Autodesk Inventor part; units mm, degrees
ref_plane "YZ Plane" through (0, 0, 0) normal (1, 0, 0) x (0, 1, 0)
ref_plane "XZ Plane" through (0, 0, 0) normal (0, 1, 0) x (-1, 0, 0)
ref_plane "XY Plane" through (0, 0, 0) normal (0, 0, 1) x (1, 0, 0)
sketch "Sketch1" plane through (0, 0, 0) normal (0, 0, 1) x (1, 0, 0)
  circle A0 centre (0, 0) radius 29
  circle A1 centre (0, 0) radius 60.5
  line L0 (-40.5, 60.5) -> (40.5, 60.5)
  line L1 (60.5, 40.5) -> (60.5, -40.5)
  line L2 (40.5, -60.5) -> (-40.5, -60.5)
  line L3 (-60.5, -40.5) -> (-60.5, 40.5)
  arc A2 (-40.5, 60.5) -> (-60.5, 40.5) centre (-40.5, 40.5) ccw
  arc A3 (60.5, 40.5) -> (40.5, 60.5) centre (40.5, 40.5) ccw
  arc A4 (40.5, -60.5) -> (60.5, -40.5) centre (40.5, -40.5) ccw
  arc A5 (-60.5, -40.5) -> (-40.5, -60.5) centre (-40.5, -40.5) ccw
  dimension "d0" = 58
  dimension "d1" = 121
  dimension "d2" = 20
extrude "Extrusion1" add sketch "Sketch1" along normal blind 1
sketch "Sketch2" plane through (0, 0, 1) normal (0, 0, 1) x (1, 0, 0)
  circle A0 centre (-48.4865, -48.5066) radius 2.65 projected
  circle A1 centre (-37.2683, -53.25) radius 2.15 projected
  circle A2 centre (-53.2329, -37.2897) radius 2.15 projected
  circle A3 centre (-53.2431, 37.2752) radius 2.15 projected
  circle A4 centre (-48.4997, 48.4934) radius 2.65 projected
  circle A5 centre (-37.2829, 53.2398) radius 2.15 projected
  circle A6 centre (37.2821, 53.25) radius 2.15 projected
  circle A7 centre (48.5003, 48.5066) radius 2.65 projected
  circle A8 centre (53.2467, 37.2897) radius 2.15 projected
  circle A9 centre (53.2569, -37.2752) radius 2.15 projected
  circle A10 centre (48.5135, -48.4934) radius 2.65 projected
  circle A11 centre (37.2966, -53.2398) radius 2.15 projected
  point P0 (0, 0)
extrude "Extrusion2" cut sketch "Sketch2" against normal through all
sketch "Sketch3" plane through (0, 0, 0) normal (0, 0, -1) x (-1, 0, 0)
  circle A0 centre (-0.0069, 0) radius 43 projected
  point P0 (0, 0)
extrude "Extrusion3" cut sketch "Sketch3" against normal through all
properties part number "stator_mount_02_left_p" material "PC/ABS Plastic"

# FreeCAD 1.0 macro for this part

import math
import FreeCAD as App
import Part
import Sketcher

V = App.Vector

doc = App.newDocument("Part")
body = doc.addObject("PartDesign::Body", "Body")

sketch1 = doc.addObject("Sketcher::SketchObject", "Sketch")
body.addObject(sketch1)
sketch1.AttachmentSupport = (doc.XY_Plane, [""])
sketch1.MapMode = "FlatFace"
sketch1.addGeometry([
    Part.LineSegment(V(60, -40, 0), V(60, 40, 0)),
    Part.ArcOfCircle(Part.Circle(V(40, 40, 0), V(0, 0, 1), 20), math.radians(0), math.radians(90)),
    Part.LineSegment(V(40, 60, 0), V(-40, 60, 0)),
    Part.ArcOfCircle(Part.Circle(V(-40, 40, 0), V(0, 0, 1), 20), math.radians(90), math.radians(180)),
    Part.LineSegment(V(-60, 40, 0), V(-60, -40, 0)),
    Part.ArcOfCircle(Part.Circle(V(-40, -40, 0), V(0, 0, 1), 20), math.radians(180), math.radians(270)),
    Part.LineSegment(V(-40, -60, 0), V(40, -60, 0)),
    Part.ArcOfCircle(Part.Circle(V(40, -40, 0), V(0, 0, 1), 20), math.radians(-90), math.radians(0)),
    Part.Circle(V(0, 0, 0), V(0, 0, 1), 29),
], False)
sketch1.addConstraint([
    Sketcher.Constraint("Tangent", 0, 2, 1, 1),
    Sketcher.Constraint("Tangent", 1, 2, 2, 1),
    Sketcher.Constraint("Tangent", 2, 2, 3, 1),
    Sketcher.Constraint("Tangent", 3, 2, 4, 1),
    Sketcher.Constraint("Tangent", 4, 2, 5, 1),
    Sketcher.Constraint("Tangent", 5, 2, 6, 1),
    Sketcher.Constraint("Tangent", 6, 2, 7, 1),
    Sketcher.Constraint("Tangent", 7, 2, 0, 1),
    Sketcher.Constraint("Vertical", 0),
    Sketcher.Constraint("Horizontal", 2),
    Sketcher.Constraint("Vertical", 4),
    Sketcher.Constraint("Horizontal", 6),
    Sketcher.Constraint("Coincident", 8, 3, -1, 1),
    Sketcher.Constraint("Equal", 1, 3),
    Sketcher.Constraint("Equal", 3, 5),
    Sketcher.Constraint("Equal", 5, 7),
    Sketcher.Constraint("Symmetric", 1, 3, 5, 3, -1, 1),
    Sketcher.Constraint("Equal", 6, 0),
    Sketcher.Constraint("Diameter", 8, 58.0),
    Sketcher.Constraint("Radius", 1, 20.0),
    Sketcher.Constraint("DistanceX", 2, 2, 2, 1, 81.0),
])
pad1 = doc.addObject("PartDesign::Pad", "Pad")
body.addObject(pad1)
pad1.Profile = sketch1
pad1.Length = 1

sketch2 = doc.addObject("Sketcher::SketchObject", "Sketch001")
body.addObject(sketch2)
sketch2.AttachmentSupport = (doc.XY_Plane, [""])
sketch2.MapMode = "FlatFace"
sketch2.AttachmentOffset = App.Placement(V(0, 0, 1), App.Rotation())
sketch2.addGeometry([
    Part.Circle(V(-48.5, -48.5, 0), V(0, 0, 1), 2.6),
    Part.Circle(V(-37.3, -53.2, 0), V(0, 0, 1), 2.1),
    Part.Circle(V(-53.2, -37.3, 0), V(0, 0, 1), 2.1),
    Part.Circle(V(-53.2, 37.3, 0), V(0, 0, 1), 2.1),
    Part.Circle(V(-48.5, 48.5, 0), V(0, 0, 1), 2.6),
    Part.Circle(V(-37.3, 53.2, 0), V(0, 0, 1), 2.1),
    Part.Circle(V(37.3, 53.2, 0), V(0, 0, 1), 2.1),
    Part.Circle(V(48.5, 48.5, 0), V(0, 0, 1), 2.6),
    Part.Circle(V(53.2, 37.3, 0), V(0, 0, 1), 2.1),
    Part.Circle(V(53.3, -37.3, 0), V(0, 0, 1), 2.1),
    Part.Circle(V(48.5, -48.5, 0), V(0, 0, 1), 2.6),
    Part.Circle(V(37.3, -53.2, 0), V(0, 0, 1), 2.1),
], False)
sketch2.addConstraint([
    Sketcher.Constraint("Equal", 1, 2),
    Sketcher.Constraint("Equal", 2, 3),
    Sketcher.Constraint("Equal", 0, 4),
    Sketcher.Constraint("Equal", 3, 5),
    Sketcher.Constraint("Equal", 5, 6),
    Sketcher.Constraint("Equal", 4, 7),
    Sketcher.Constraint("Equal", 6, 8),
    Sketcher.Constraint("Equal", 8, 9),
    Sketcher.Constraint("Equal", 7, 10),
    Sketcher.Constraint("Equal", 9, 11),
    Sketcher.Constraint("Diameter", 0, 5.3),
    Sketcher.Constraint("Diameter", 1, 4.3),
    Sketcher.Constraint("DistanceY", 0, 3, 4, 3, 97.0),
    Sketcher.Constraint("DistanceX", 4, 3, 7, 3, 97.0),
    Sketcher.Constraint("DistanceX", 0, 3, 10, 3, 97.0),
    Sketcher.Constraint("DistanceY", 10, 3, 7, 3, 97.0),
    Sketcher.Constraint("DistanceY", 1, 3, 6, 3, 106.5),
    Sketcher.Constraint("DistanceY", 1, 3, -1, 1, 53.25),
    Sketcher.Constraint("DistanceX", 2, 3, 5, 3, 15.95),
    Sketcher.Constraint("DistanceY", 8, 3, 5, 3, 15.95),
    Sketcher.Constraint("DistanceY", 11, 3, 2, 3, 15.95),
    Sketcher.Constraint("DistanceX", 2, 3, -1, 1, 53.233),
    Sketcher.Constraint("DistanceX", 3, 3, -1, 1, 53.243),
    Sketcher.Constraint("DistanceX", -1, 1, 6, 3, 37.282),
    Sketcher.Constraint("DistanceX", -1, 1, 9, 3, 53.257),
    Sketcher.Constraint("DistanceY", 0, 3, 2, 3, 11.217),
    Sketcher.Constraint("DistanceY", 2, 3, 3, 3, 74.565),
    Sketcher.Constraint("DistanceY", 8, 3, 7, 3, 11.217),
    Sketcher.Constraint("DistanceY", 9, 3, 8, 3, 74.565),
    Sketcher.Constraint("DistanceX", 11, 3, 10, 3, 11.217),
    Sketcher.Constraint("DistanceX", 1, 3, 11, 3, 74.565),
    Sketcher.Constraint("DistanceX", 0, 3, -1, 1, 48.4865),
    Sketcher.Constraint("DistanceY", 0, 3, -1, 1, 48.5066),
    Sketcher.Constraint("DistanceX", 4, 3, -1, 1, 48.4997),
    Sketcher.Constraint("DistanceY", -1, 1, 5, 3, 53.2398),
    Sketcher.Constraint("DistanceX", -1, 1, 8, 3, 53.2467),
])
pocket1 = doc.addObject("PartDesign::Pocket", "Pocket")
body.addObject(pocket1)
pocket1.Profile = sketch2
pocket1.Type = "ThroughAll"

sketch3 = doc.addObject("Sketcher::SketchObject", "Sketch002")
body.addObject(sketch3)
sketch3.AttachmentSupport = (doc.XY_Plane, [""])
sketch3.MapMode = "FlatFace"
sketch3.addGeometry(Part.Circle(V(0, 0, 0), V(0, 0, 1), 43), False)
sketch3.addConstraint([
    Sketcher.Constraint("PointOnObject", 0, 3, -1),
    Sketcher.Constraint("Diameter", 0, 86.0),
    Sketcher.Constraint("DistanceX", -1, 1, 0, 3, 0.007),
])
pocket2 = doc.addObject("PartDesign::Pocket", "Pocket001")
body.addObject(pocket2)
pocket2.Profile = sketch3
pocket2.Type = "ThroughAll"
pocket2.Reversed = True

doc.recompute()
